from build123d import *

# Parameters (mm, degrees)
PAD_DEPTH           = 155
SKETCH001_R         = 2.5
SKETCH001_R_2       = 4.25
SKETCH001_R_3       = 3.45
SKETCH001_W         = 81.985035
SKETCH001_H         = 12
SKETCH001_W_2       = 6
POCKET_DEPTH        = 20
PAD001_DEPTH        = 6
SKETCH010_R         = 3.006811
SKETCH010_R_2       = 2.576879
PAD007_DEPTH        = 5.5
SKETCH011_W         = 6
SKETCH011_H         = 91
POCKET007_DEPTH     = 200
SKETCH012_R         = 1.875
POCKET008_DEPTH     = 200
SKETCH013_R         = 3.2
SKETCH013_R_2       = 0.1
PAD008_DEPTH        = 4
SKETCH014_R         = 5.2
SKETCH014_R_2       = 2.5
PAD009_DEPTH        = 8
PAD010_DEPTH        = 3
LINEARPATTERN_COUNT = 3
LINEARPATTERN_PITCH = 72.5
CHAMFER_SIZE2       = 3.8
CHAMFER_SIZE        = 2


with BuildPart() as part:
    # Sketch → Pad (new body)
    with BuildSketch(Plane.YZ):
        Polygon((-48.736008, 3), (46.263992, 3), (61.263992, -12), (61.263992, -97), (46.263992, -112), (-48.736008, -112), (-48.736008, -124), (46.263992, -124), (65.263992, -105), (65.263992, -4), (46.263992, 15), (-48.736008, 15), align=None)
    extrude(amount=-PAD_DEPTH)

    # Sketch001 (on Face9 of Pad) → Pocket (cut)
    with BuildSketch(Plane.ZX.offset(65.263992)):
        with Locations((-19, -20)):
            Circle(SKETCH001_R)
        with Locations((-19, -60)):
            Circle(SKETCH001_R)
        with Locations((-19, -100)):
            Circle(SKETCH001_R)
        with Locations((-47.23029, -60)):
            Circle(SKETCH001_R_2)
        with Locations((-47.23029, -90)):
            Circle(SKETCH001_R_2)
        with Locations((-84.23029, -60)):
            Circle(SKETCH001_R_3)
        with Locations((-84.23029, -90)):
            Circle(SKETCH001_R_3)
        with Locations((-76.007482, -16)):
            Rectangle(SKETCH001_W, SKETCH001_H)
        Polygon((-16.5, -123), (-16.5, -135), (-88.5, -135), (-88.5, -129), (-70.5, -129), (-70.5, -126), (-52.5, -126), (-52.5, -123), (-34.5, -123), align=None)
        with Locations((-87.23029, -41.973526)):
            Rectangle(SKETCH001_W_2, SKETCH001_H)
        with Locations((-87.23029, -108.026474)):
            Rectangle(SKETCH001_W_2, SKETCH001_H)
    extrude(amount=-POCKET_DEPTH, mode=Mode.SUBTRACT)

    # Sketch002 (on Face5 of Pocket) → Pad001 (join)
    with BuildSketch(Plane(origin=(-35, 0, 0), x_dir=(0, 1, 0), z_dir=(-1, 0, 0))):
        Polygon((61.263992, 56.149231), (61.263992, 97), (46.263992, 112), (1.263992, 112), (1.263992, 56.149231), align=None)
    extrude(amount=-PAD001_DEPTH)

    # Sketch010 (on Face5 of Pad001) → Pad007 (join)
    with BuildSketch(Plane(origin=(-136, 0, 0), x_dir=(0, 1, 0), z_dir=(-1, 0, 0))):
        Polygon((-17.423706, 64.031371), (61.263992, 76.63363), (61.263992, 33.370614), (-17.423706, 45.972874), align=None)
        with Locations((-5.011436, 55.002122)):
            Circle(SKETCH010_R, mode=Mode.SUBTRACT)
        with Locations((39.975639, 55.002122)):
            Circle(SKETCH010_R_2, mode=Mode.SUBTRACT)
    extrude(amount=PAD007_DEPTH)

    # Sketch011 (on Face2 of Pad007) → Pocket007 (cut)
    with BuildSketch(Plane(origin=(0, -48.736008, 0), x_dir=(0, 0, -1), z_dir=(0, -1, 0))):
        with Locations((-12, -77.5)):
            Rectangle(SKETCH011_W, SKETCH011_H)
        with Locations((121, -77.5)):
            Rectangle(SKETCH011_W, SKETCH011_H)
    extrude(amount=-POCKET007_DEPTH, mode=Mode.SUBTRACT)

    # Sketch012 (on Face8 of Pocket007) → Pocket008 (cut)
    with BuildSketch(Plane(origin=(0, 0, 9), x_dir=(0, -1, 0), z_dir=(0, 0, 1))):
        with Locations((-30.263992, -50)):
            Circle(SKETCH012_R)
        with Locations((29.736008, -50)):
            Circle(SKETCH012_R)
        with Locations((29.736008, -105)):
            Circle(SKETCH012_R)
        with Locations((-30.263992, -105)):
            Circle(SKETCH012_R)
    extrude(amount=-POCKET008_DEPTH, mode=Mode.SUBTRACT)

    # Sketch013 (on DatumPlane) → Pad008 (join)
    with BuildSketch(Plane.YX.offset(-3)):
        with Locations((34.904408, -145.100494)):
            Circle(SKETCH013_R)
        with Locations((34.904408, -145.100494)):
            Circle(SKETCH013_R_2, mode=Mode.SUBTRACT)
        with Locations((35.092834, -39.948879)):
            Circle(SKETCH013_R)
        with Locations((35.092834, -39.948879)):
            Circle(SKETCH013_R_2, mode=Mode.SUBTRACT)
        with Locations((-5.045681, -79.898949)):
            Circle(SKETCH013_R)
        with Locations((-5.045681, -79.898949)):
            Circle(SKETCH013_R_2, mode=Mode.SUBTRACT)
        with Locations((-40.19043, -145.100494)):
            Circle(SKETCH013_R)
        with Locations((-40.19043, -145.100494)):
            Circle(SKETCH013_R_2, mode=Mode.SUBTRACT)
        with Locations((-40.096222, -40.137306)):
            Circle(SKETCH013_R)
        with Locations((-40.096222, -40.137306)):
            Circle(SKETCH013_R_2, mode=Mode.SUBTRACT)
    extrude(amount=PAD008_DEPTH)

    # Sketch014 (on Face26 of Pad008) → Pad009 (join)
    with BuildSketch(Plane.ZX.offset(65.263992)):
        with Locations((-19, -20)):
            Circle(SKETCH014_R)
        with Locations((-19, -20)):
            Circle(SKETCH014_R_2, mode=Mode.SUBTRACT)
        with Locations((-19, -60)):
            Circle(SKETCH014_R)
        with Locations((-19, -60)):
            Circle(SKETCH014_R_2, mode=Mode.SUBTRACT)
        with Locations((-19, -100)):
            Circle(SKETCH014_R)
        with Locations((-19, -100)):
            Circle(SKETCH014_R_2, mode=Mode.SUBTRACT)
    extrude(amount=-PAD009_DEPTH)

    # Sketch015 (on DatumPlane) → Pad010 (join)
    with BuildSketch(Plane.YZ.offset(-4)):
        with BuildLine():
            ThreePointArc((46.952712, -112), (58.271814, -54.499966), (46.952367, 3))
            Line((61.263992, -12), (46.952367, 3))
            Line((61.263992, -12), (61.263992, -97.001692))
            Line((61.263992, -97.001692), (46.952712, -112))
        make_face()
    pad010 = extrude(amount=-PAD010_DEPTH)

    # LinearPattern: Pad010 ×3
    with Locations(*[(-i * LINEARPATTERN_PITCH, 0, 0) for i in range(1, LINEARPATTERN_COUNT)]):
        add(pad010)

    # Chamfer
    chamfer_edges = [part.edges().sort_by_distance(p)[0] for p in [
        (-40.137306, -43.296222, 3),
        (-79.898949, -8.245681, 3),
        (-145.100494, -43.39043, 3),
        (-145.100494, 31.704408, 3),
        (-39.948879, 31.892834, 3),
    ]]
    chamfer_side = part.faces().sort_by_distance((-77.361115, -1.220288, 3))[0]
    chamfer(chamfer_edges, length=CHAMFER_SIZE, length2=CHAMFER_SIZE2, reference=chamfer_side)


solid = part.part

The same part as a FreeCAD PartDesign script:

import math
import FreeCAD as App
import Part
import Sketcher
from FreeCAD import Vector
Q = App.Units.Quantity


def edges_at(feature, points):
    """Names of the edges that pass closest to the given points."""
    edges = feature.Shape.Edges
    near = lambda p: min(range(len(edges)), key=lambda i: edges[i].distToShape(Part.Vertex(*p))[0])
    return sorted({f"Edge{near(p) + 1}" for p in points})

doc = App.newDocument("Part")
params = doc.addObject("Spreadsheet::Sheet", "Params")
for row, (alias, value) in enumerate([
    ("sketch1_width", "95 mm"),
    ("sketch1_height", "85 mm"),
    ("sketch1_height2", "12 mm"),
    ("sketch1_height3", "101 mm"),
    ("pad1_length", "155 mm"),
    ("sketch2_diameter", "5 mm"),
    ("sketch2_diameter2", "8.5 mm"),
    ("sketch2_diameter3", "6.9 mm"),
    ("sketch2_width", "12 mm"),
    ("sketch2_width2", "3 mm"),
    ("pocket1_length", "20 mm"),
    ("sketch3_width", "45 mm"),
    ("sketch3_width2", "60 mm"),
    ("pad2_length", "6 mm"),
    ("pad3_length", "5.5 mm"),
    ("sketch5_width", "91 mm"),
    ("sketch5_height", "6 mm"),
    ("pocket2_length", "200 mm"),
    ("sketch6_diameter", "3.75 mm"),
    ("pocket3_length", "200 mm"),
    ("sketch7_diameter", "6.4 mm"),
    ("sketch7_diameter2", "0.2 mm"),
    ("pad4_length", "4 mm"),
    ("sketch8_diameter", "5 mm"),
    ("sketch8_diameter2", "10.4 mm"),
    ("pad5_length", "8 mm"),
    ("pad6_length", "3 mm"),
    ("linearpattern_pitch", "72.5 mm"),
    ("chamfer_size", "2 mm"),
    ("chamfer_size2", "3.8 mm"),
], start=1):
    params.set(f"A{row}", alias)
    params.set(f"B{row}", "=" + value)
    params.setAlias(f"B{row}", alias)

body = doc.addObject("PartDesign::Body", "Body")

# Sketch on YZ plane
sketch1 = body.newObject("Sketcher::SketchObject", "Sketch")
sketch1.AttachmentSupport = (doc.getObject("YZ_Plane"), [""])
sketch1.MapMode = "FlatFace"
sketch1.addGeometry([
    Part.LineSegment(Vector(-49, 3, 0), Vector(46, 3, 0)),  # 0
    Part.LineSegment(Vector(46, 3, 0), Vector(61, -12, 0)),  # 1
    Part.LineSegment(Vector(61, -12, 0), Vector(61, -97, 0)),  # 2
    Part.LineSegment(Vector(61, -97, 0), Vector(46, -112, 0)),  # 3
    Part.LineSegment(Vector(46, -112, 0), Vector(-49, -112, 0)),  # 4
    Part.LineSegment(Vector(-49, -112, 0), Vector(-49, -124, 0)),  # 5
    Part.LineSegment(Vector(-49, -124, 0), Vector(46, -124, 0)),  # 6
    Part.LineSegment(Vector(46, -124, 0), Vector(65, -105, 0)),  # 7
    Part.LineSegment(Vector(65, -105, 0), Vector(65, -4, 0)),  # 8
    Part.LineSegment(Vector(65, -4, 0), Vector(46, 15, 0)),  # 9
    Part.LineSegment(Vector(46, 15, 0), Vector(-49, 15, 0)),  # 10
    Part.LineSegment(Vector(-49, 15, 0), Vector(-49, 3, 0)),  # 11
], False)
sketch1.addConstraint([
    Sketcher.Constraint("Coincident", 0, 2, 1, 1),
    Sketcher.Constraint("Coincident", 1, 2, 2, 1),
    Sketcher.Constraint("Coincident", 2, 2, 3, 1),
    Sketcher.Constraint("Coincident", 3, 2, 4, 1),
    Sketcher.Constraint("Coincident", 4, 2, 5, 1),
    Sketcher.Constraint("Coincident", 5, 2, 6, 1),
    Sketcher.Constraint("Coincident", 6, 2, 7, 1),
    Sketcher.Constraint("Coincident", 7, 2, 8, 1),
    Sketcher.Constraint("Coincident", 8, 2, 9, 1),
    Sketcher.Constraint("Coincident", 9, 2, 10, 1),
    Sketcher.Constraint("Coincident", 10, 2, 11, 1),
    Sketcher.Constraint("Coincident", 11, 2, 0, 1),
    Sketcher.Constraint("Horizontal", 0),
    Sketcher.Constraint("Vertical", 2),
    Sketcher.Constraint("Horizontal", 4),
    Sketcher.Constraint("Vertical", 5),
    Sketcher.Constraint("Horizontal", 6),
    Sketcher.Constraint("Vertical", 8),
    Sketcher.Constraint("Horizontal", 10),
    Sketcher.Constraint("Vertical", 11),
    Sketcher.Constraint("Perpendicular", 1, 3),
    Sketcher.Constraint("Parallel", 3, 7),
    Sketcher.Constraint("Perpendicular", 7, 9),
    Sketcher.Constraint("Vertical", 0, 2, 3, 2),
    Sketcher.Constraint("Vertical", 3, 2, 6, 2),
    Sketcher.Constraint("Vertical", 6, 2, 9, 2),
    Sketcher.Constraint("Vertical", 5, 2, 10, 2),
    Sketcher.Constraint("Equal", 5, 11),
    Sketcher.Constraint("Equal", 1, 3),
    Sketcher.Constraint("DistanceX", 0, 1, 0, 2, 95.0),
    Sketcher.Constraint("DistanceY", 2, 2, 2, 1, 85.0),
    Sketcher.Constraint("DistanceY", 5, 2, 5, 1, 12.0),
    Sketcher.Constraint("DistanceY", 8, 1, 8, 2, 101.0),
    Sketcher.Constraint("DistanceY", -1, 1, 0, 2, 3.0),
    Sketcher.Constraint("DistanceY", 1, 2, -1, 1, 12.0),
    Sketcher.Constraint("DistanceX", -1, 1, 7, 2, 65.263992),
])
sketch1.setExpression("Constraints[29]", "Params.sketch1_width")
sketch1.setExpression("Constraints[30]", "Params.sketch1_height")
sketch1.setExpression("Constraints[31]", "Params.sketch1_height2")
sketch1.setExpression("Constraints[32]", "Params.sketch1_height3")
pad1 = body.newObject("PartDesign::Pad", "Pad")
pad1.Profile = sketch1
pad1.setExpression("Length", "Params.pad1_length")
pad1.Reversed = True

# Sketch on XZ plane
sketch2 = body.newObject("Sketcher::SketchObject", "Sketch001")
sketch2.AttachmentSupport = (doc.getObject("XZ_Plane"), [""])
sketch2.MapMode = "FlatFace"
sketch2.AttachmentOffset = App.Placement(Vector(0, 0, -65.263992), App.Rotation())
sketch2.addGeometry([
    Part.Circle(Vector(-20, -19, 0), Vector(0, 0, 1), 2.5),  # 0
    Part.Circle(Vector(-60, -19, 0), Vector(0, 0, 1), 2.5),  # 1
    Part.Circle(Vector(-100, -19, 0), Vector(0, 0, 1), 2.5),  # 2
    Part.Circle(Vector(-60, -47.2, 0), Vector(0, 0, 1), 4.2),  # 3
    Part.Circle(Vector(-90, -47.2, 0), Vector(0, 0, 1), 4.2),  # 4
    Part.Circle(Vector(-60, -84.2, 0), Vector(0, 0, 1), 3.5),  # 5
    Part.Circle(Vector(-90, -84.2, 0), Vector(0, 0, 1), 3.5),  # 6
    Part.LineSegment(Vector(-10, -117, 0), Vector(-22, -117, 0)),  # 7
    Part.LineSegment(Vector(-22, -117, 0), Vector(-22, -35, 0)),  # 8
    Part.LineSegment(Vector(-22, -35, 0), Vector(-10, -35, 0)),  # 9
    Part.LineSegment(Vector(-10, -35, 0), Vector(-10, -117, 0)),  # 10
    Part.LineSegment(Vector(-135, -16.5, 0), Vector(-123, -16.5, 0)),  # 11
    Part.LineSegment(Vector(-123, -16.5, 0), Vector(-123, -52.5, 0)),  # 12
    Part.LineSegment(Vector(-123, -52.5, 0), Vector(-126, -52.5, 0)),  # 13
    Part.LineSegment(Vector(-126, -52.5, 0), Vector(-126, -70.5, 0)),  # 14
    Part.LineSegment(Vector(-126, -70.5, 0), Vector(-129, -70.5, 0)),  # 15
    Part.LineSegment(Vector(-129, -70.5, 0), Vector(-129, -88.5, 0)),  # 16
    Part.LineSegment(Vector(-129, -88.5, 0), Vector(-135, -88.5, 0)),  # 17
    Part.LineSegment(Vector(-135, -88.5, 0), Vector(-135, -16.5, 0)),  # 18
    Part.LineSegment(Vector(-36, -90.2, 0), Vector(-48, -90.2, 0)),  # 19
    Part.LineSegment(Vector(-48, -90.2, 0), Vector(-48, -84.2, 0)),  # 20
    Part.LineSegment(Vector(-48, -84.2, 0), Vector(-36, -84.2, 0)),  # 21
    Part.LineSegment(Vector(-36, -84.2, 0), Vector(-36, -90.2, 0)),  # 22
    Part.LineSegment(Vector(-102, -90.2, 0), Vector(-114, -90.2, 0)),  # 23
    Part.LineSegment(Vector(-114, -90.2, 0), Vector(-114, -84.2, 0)),  # 24
    Part.LineSegment(Vector(-114, -84.2, 0), Vector(-102, -84.2, 0)),  # 25
    Part.LineSegment(Vector(-102, -84.2, 0), Vector(-102, -90.2, 0)),  # 26
], False)
sketch2.addConstraint([
    Sketcher.Constraint("Coincident", 7, 2, 8, 1),
    Sketcher.Constraint("Coincident", 8, 2, 9, 1),
    Sketcher.Constraint("Coincident", 9, 2, 10, 1),
    Sketcher.Constraint("Coincident", 10, 2, 7, 1),
    Sketcher.Constraint("Coincident", 11, 2, 12, 1),
    Sketcher.Constraint("Coincident", 12, 2, 13, 1),
    Sketcher.Constraint("Coincident", 13, 2, 14, 1),
    Sketcher.Constraint("Coincident", 14, 2, 15, 1),
    Sketcher.Constraint("Coincident", 15, 2, 16, 1),
    Sketcher.Constraint("Coincident", 16, 2, 17, 1),
    Sketcher.Constraint("Coincident", 17, 2, 18, 1),
    Sketcher.Constraint("Coincident", 18, 2, 11, 1),
    Sketcher.Constraint("Coincident", 19, 2, 20, 1),
    Sketcher.Constraint("Coincident", 20, 2, 21, 1),
    Sketcher.Constraint("Coincident", 21, 2, 22, 1),
    Sketcher.Constraint("Coincident", 22, 2, 19, 1),
    Sketcher.Constraint("Coincident", 23, 2, 24, 1),
    Sketcher.Constraint("Coincident", 24, 2, 25, 1),
    Sketcher.Constraint("Coincident", 25, 2, 26, 1),
    Sketcher.Constraint("Coincident", 26, 2, 23, 1),
    Sketcher.Constraint("Horizontal", 7),
    Sketcher.Constraint("Vertical", 8),
    Sketcher.Constraint("Horizontal", 9),
    Sketcher.Constraint("Vertical", 10),
    Sketcher.Constraint("Horizontal", 11),
    Sketcher.Constraint("Vertical", 12),
    Sketcher.Constraint("Horizontal", 13),
    Sketcher.Constraint("Vertical", 14),
    Sketcher.Constraint("Horizontal", 15),
    Sketcher.Constraint("Vertical", 16),
    Sketcher.Constraint("Horizontal", 17),
    Sketcher.Constraint("Vertical", 18),
    Sketcher.Constraint("Horizontal", 19),
    Sketcher.Constraint("Vertical", 20),
    Sketcher.Constraint("Horizontal", 21),
    Sketcher.Constraint("Vertical", 22),
    Sketcher.Constraint("Horizontal", 23),
    Sketcher.Constraint("Vertical", 24),
    Sketcher.Constraint("Horizontal", 25),
    Sketcher.Constraint("Vertical", 26),
    Sketcher.Constraint("Equal", 0, 1),
    Sketcher.Constraint("Equal", 1, 2),
    Sketcher.Constraint("Equal", 3, 4),
    Sketcher.Constraint("Equal", 5, 6),
    Sketcher.Constraint("Horizontal", 0, 3, 1, 3),
    Sketcher.Constraint("Horizontal", 1, 3, 2, 3),
    Sketcher.Constraint("Horizontal", 3, 3, 4, 3),
    Sketcher.Constraint("Horizontal", 5, 3, 6, 3),
    Sketcher.Constraint("Horizontal", 6, 3, 20, 2),
    Sketcher.Constraint("Horizontal", 22, 2, 23, 2),
    Sketcher.Constraint("Horizontal", 21, 2, 24, 2),
    Sketcher.Constraint("Vertical", 1, 3, 3, 3),
    Sketcher.Constraint("Vertical", 3, 3, 5, 3),
    Sketcher.Constraint("Vertical", 4, 3, 6, 3),
    Sketcher.Constraint("Equal", 9, 11),
    Sketcher.Constraint("Equal", 13, 15),
    Sketcher.Constraint("Equal", 11, 19),
    Sketcher.Constraint("Equal", 21, 23),
    Sketcher.Constraint("Equal", 14, 16),
    Sketcher.Constraint("Equal", 17, 20),
    Sketcher.Constraint("Diameter", 0, 5.0),
    Sketcher.Constraint("Diameter", 3, 8.5),
    Sketcher.Constraint("Diameter", 5, 6.9),
    Sketcher.Constraint("DistanceX", 7, 2, 7, 1, 12.0),
    Sketcher.Constraint("DistanceX", 13, 2, 13, 1, 3.0),
    Sketcher.Constraint("DistanceY", 12, 2, 12, 1, 36.0),
    Sketcher.Constraint("DistanceY", 14, 2, 14, 1, 18.0),
    Sketcher.Constraint("DistanceX", 0, 3, -1, 1, 20.0),
    Sketcher.Constraint("DistanceY", 0, 3, -1, 1, 19.0),
    Sketcher.Constraint("DistanceX", 1, 3, -1, 1, 60.0),
    Sketcher.Constraint("DistanceX", 2, 3, -1, 1, 100.0),
    Sketcher.Constraint("DistanceX", 4, 3, -1, 1, 90.0),
    Sketcher.Constraint("DistanceX", 7, 2, -1, 1, 22.0),
    Sketcher.Constraint("DistanceY", 7, 2, -1, 1, 117.0),
    Sketcher.Constraint("DistanceX", 11, 2, -1, 1, 123.0),
    Sketcher.Constraint("DistanceY", 5, 3, 3, 3, 37.0),
    Sketcher.Constraint("DistanceY", 11, 2, -1, 1, 16.5),
    Sketcher.Constraint("DistanceY", 8, 1, 8, 2, 81.985035),
    Sketcher.Constraint("DistanceY", 3, 3, -1, 1, 47.23029),
    Sketcher.Constraint("DistanceX", 19, 2, -1, 1, 47.973526),
    Sketcher.Constraint("DistanceX", 23, 2, -1, 1, 114.026474),
])
sketch2.setExpression("Constraints[60]", "Params.sketch2_diameter")
sketch2.setExpression("Constraints[61]", "Params.sketch2_diameter2")
sketch2.setExpression("Constraints[62]", "Params.sketch2_diameter3")
sketch2.setExpression("Constraints[63]", "Params.sketch2_width")
sketch2.setExpression("Constraints[64]", "Params.sketch2_width2")
pocket1 = body.newObject("PartDesign::Pocket", "Pocket")
pocket1.Profile = sketch2
pocket1.setExpression("Length", "Params.pocket1_length")
pocket1.Reversed = True

# Sketch on YZ plane
sketch3 = body.newObject("Sketcher::SketchObject", "Sketch002")
sketch3.AttachmentSupport = (doc.getObject("YZ_Plane"), [""])
sketch3.MapMode = "FlatFace"
sketch3.AttachmentOffset = App.Placement(Vector(0, 0, -35), App.Rotation())
sketch3.addGeometry([
    Part.LineSegment(Vector(61, -56, 0), Vector(61, -97, 0)),  # 0
    Part.LineSegment(Vector(61, -97, 0), Vector(46, -112, 0)),  # 1
    Part.LineSegment(Vector(46, -112, 0), Vector(1, -112, 0)),  # 2
    Part.LineSegment(Vector(1, -112, 0), Vector(1, -56, 0)),  # 3
    Part.LineSegment(Vector(1, -56, 0), Vector(61, -56, 0)),  # 4
], False)
sketch3.addConstraint([
    Sketcher.Constraint("Coincident", 0, 2, 1, 1),
    Sketcher.Constraint("Coincident", 1, 2, 2, 1),
    Sketcher.Constraint("Coincident", 2, 2, 3, 1),
    Sketcher.Constraint("Coincident", 3, 2, 4, 1),
    Sketcher.Constraint("Coincident", 4, 2, 0, 1),
    Sketcher.Constraint("Vertical", 0),
    Sketcher.Constraint("Horizontal", 2),
    Sketcher.Constraint("Vertical", 3),
    Sketcher.Constraint("Horizontal", 4),
    Sketcher.Constraint("DistanceX", 2, 2, 2, 1, 45.0),
    Sketcher.Constraint("DistanceX", 4, 1, 4, 2, 60.0),
    Sketcher.Constraint("Angle", 1, Q("-135 deg")),
    Sketcher.Constraint("DistanceY", 0, 2, -1, 1, 97.0),
    Sketcher.Constraint("DistanceY", 0, 2, 0, 1, 40.850769),
    Sketcher.Constraint("DistanceX", -1, 1, 0, 2, 61.263992),
])
sketch3.setExpression("Constraints[9]", "Params.sketch3_width")
sketch3.setExpression("Constraints[10]", "Params.sketch3_width2")
pad2 = body.newObject("PartDesign::Pad", "Pad001")
pad2.Profile = sketch3
pad2.setExpression("Length", "Params.pad2_length")

# Sketch on YZ plane
sketch4 = body.newObject("Sketcher::SketchObject", "Sketch003")
sketch4.AttachmentSupport = (doc.getObject("YZ_Plane"), [""])
sketch4.MapMode = "FlatFace"
sketch4.AttachmentOffset = App.Placement(Vector(0, 0, -136), App.Rotation())
sketch4.addGeometry([
    Part.LineSegment(Vector(61.3, -76.6, 0), Vector(-17.4, -64, 0)),  # 0
    Part.LineSegment(Vector(-17.4, -64, 0), Vector(-17.4, -46, 0)),  # 1
    Part.LineSegment(Vector(-17.4, -46, 0), Vector(61.3, -33.4, 0)),  # 2
    Part.LineSegment(Vector(61.3, -33.4, 0), Vector(61.3, -76.6, 0)),  # 3
    Part.Circle(Vector(40, -55, 0), Vector(0, 0, 1), 2.6),  # 4
    Part.Circle(Vector(-5, -55, 0), Vector(0, 0, 1), 3),  # 5
], False)
sketch4.addConstraint([
    Sketcher.Constraint("Coincident", 0, 2, 1, 1),
    Sketcher.Constraint("Coincident", 1, 2, 2, 1),
    Sketcher.Constraint("Coincident", 2, 2, 3, 1),
    Sketcher.Constraint("Coincident", 3, 2, 0, 1),
    Sketcher.Constraint("Vertical", 1),
    Sketcher.Constraint("Vertical", 3),
    Sketcher.Constraint("Horizontal", 4, 3, 5, 3),
    Sketcher.Constraint("Equal", 0, 2),
    Sketcher.Constraint("Diameter", 5, 6.013622),
    Sketcher.Constraint("Diameter", 4, 5.153758),
    Sketcher.Constraint("Distance", 0, 79.690468),
    Sketcher.Constraint("DistanceY", 1, 1, 1, 2, 18.058497),
    Sketcher.Constraint("DistanceY", 3, 2, 3, 1, 43.263016),
    Sketcher.Constraint("DistanceX", -1, 1, 4, 3, 39.975639),
    Sketcher.Constraint("DistanceY", 0, 2, -1, 1, 64.031371),
    Sketcher.Constraint("DistanceX", 0, 2, 5, 3, 12.41227),
    Sketcher.Constraint("DistanceY", 0, 2, 5, 3, 9.029249),
    Sketcher.Constraint("DistanceX", 5, 3, -1, 1, 5.011436),
])
pad3 = body.newObject("PartDesign::Pad", "Pad002")
pad3.Profile = sketch4
pad3.setExpression("Length", "Params.pad3_length")
pad3.Reversed = True

# Sketch on XZ plane
sketch5 = body.newObject("Sketcher::SketchObject", "Sketch004")
sketch5.AttachmentSupport = (doc.getObject("XZ_Plane"), [""])
sketch5.MapMode = "FlatFace"
sketch5.AttachmentOffset = App.Placement(Vector(0, 0, 48.736008), App.Rotation())
sketch5.addGeometry([
    Part.LineSegment(Vector(-32, 15, 0), Vector(-123, 15, 0)),  # 0
    Part.LineSegment(Vector(-123, 15, 0), Vector(-123, 9, 0)),  # 1
    Part.LineSegment(Vector(-123, 9, 0), Vector(-32, 9, 0)),  # 2
    Part.LineSegment(Vector(-32, 9, 0), Vector(-32, 15, 0)),  # 3
    Part.LineSegment(Vector(-32, -118, 0), Vector(-123, -118, 0)),  # 4
    Part.LineSegment(Vector(-123, -118, 0), Vector(-123, -124, 0)),  # 5
    Part.LineSegment(Vector(-123, -124, 0), Vector(-32, -124, 0)),  # 6
    Part.LineSegment(Vector(-32, -124, 0), Vector(-32, -118, 0)),  # 7
], False)
sketch5.addConstraint([
    Sketcher.Constraint("Coincident", 0, 2, 1, 1),
    Sketcher.Constraint("Coincident", 1, 2, 2, 1),
    Sketcher.Constraint("Coincident", 2, 2, 3, 1),
    Sketcher.Constraint("Coincident", 3, 2, 0, 1),
    Sketcher.Constraint("Coincident", 4, 2, 5, 1),
    Sketcher.Constraint("Coincident", 5, 2, 6, 1),
    Sketcher.Constraint("Coincident", 6, 2, 7, 1),
    Sketcher.Constraint("Coincident", 7, 2, 4, 1),
    Sketcher.Constraint("Horizontal", 0),
    Sketcher.Constraint("Vertical", 1),
    Sketcher.Constraint("Horizontal", 2),
    Sketcher.Constraint("Vertical", 3),
    Sketcher.Constraint("Horizontal", 4),
    Sketcher.Constraint("Vertical", 5),
    Sketcher.Constraint("Horizontal", 6),
    Sketcher.Constraint("Vertical", 7),
    Sketcher.Constraint("Vertical", 1, 2, 4, 2),
    Sketcher.Constraint("Vertical", 3, 2, 6, 2),
    Sketcher.Constraint("Equal", 3, 5),
    Sketcher.Constraint("DistanceX", 0, 2, 0, 1, 91.0),
    Sketcher.Constraint("DistanceY", 1, 2, 1, 1, 6.0),
    Sketcher.Constraint("DistanceX", 0, 2, -1, 1, 123.0),
    Sketcher.Constraint("DistanceY", -1, 1, 0, 2, 15.0),
    Sketcher.Constraint("DistanceY", 4, 2, -1, 1, 118.0),
])
sketch5.setExpression("Constraints[19]", "Params.sketch5_width")
sketch5.setExpression("Constraints[20]", "Params.sketch5_height")
pocket2 = body.newObject("PartDesign::Pocket", "Pocket001")
pocket2.Profile = sketch5
pocket2.setExpression("Length", "Params.pocket2_length")

# Sketch on XY plane
sketch6 = body.newObject("Sketcher::SketchObject", "Sketch005")
sketch6.AttachmentSupport = (doc.getObject("XY_Plane"), [""])
sketch6.MapMode = "FlatFace"
sketch6.AttachmentOffset = App.Placement(Vector(0, 0, 9), App.Rotation())
sketch6.addGeometry([
    Part.Circle(Vector(-50, 30.3, 0), Vector(0, 0, 1), 1.9),
    Part.Circle(Vector(-50, -29.7, 0), Vector(0, 0, 1), 1.9),
    Part.Circle(Vector(-105, -29.7, 0), Vector(0, 0, 1), 1.9),
    Part.Circle(Vector(-105, 30.3, 0), Vector(0, 0, 1), 1.9),
], False)
sketch6.addConstraint([
    Sketcher.Constraint("Equal", 0, 1),
    Sketcher.Constraint("Equal", 1, 2),
    Sketcher.Constraint("Equal", 2, 3),
    Sketcher.Constraint("Horizontal", 1, 3, 2, 3),
    Sketcher.Constraint("Horizontal", 0, 3, 3, 3),
    Sketcher.Constraint("Vertical", 0, 3, 1, 3),
    Sketcher.Constraint("Vertical", 2, 3, 3, 3),
    Sketcher.Constraint("Diameter", 0, 3.75),
    Sketcher.Constraint("DistanceX", 0, 3, -1, 1, 50.0),
    Sketcher.Constraint("DistanceX", 2, 3, -1, 1, 105.0),
    Sketcher.Constraint("DistanceY", 1, 3, 0, 3, 60.0),
    Sketcher.Constraint("DistanceY", -1, 1, 0, 3, 30.263992),
])
sketch6.setExpression("Constraints[7]", "Params.sketch6_diameter")
pocket3 = body.newObject("PartDesign::Pocket", "Pocket002")
pocket3.Profile = sketch6
pocket3.setExpression("Length", "Params.pocket3_length")

# Sketch on XY plane
sketch7 = body.newObject("Sketcher::SketchObject", "Sketch006")
sketch7.AttachmentSupport = (doc.getObject("XY_Plane"), [""])
sketch7.MapMode = "FlatFace"
sketch7.AttachmentOffset = App.Placement(Vector(0, 0, 3), App.Rotation())
sketch7.addGeometry([
    Part.Circle(Vector(-145.1, 34.9, 0), Vector(0, 0, 1), 3.2),  # 0
    Part.Circle(Vector(-145.1, 34.9, 0), Vector(0, 0, 1), 0.1),  # 1
    Part.Circle(Vector(-39.95, 35.09, 0), Vector(0, 0, 1), 3.2),  # 2
    Part.Circle(Vector(-39.95, 35.09, 0), Vector(0, 0, 1), 0.1),  # 3
    Part.Circle(Vector(-79.9, -5.05, 0), Vector(0, 0, 1), 3.2),  # 4
    Part.Circle(Vector(-79.9, -5.05, 0), Vector(0, 0, 1), 0.1),  # 5
    Part.Circle(Vector(-145.1, -40.19, 0), Vector(0, 0, 1), 3.2),  # 6
    Part.Circle(Vector(-145.1, -40.19, 0), Vector(0, 0, 1), 0.1),  # 7
    Part.Circle(Vector(-40.14, -40.1, 0), Vector(0, 0, 1), 3.2),  # 8
    Part.Circle(Vector(-40.14, -40.1, 0), Vector(0, 0, 1), 0.1),  # 9
], False)
sketch7.addConstraint([
    Sketcher.Constraint("Coincident", 1, 3, 0, 3),
    Sketcher.Constraint("Coincident", 3, 3, 2, 3),
    Sketcher.Constraint("Coincident", 5, 3, 4, 3),
    Sketcher.Constraint("Coincident", 7, 3, 6, 3),
    Sketcher.Constraint("Coincident", 9, 3, 8, 3),
    Sketcher.Constraint("Equal", 0, 2),
    Sketcher.Constraint("Equal", 1, 3),
    Sketcher.Constraint("Equal", 2, 4),
    Sketcher.Constraint("Equal", 3, 5),
    Sketcher.Constraint("Equal", 4, 6),
    Sketcher.Constraint("Equal", 5, 7),
    Sketcher.Constraint("Equal", 6, 8),
    Sketcher.Constraint("Equal", 7, 9),
    Sketcher.Constraint("Vertical", 1, 3, 6, 3),
    Sketcher.Constraint("Diameter", 0, 6.4),
    Sketcher.Constraint("Diameter", 1, 0.2),
    Sketcher.Constraint("DistanceX", 2, 3, -1, 1, 39.948879),
    Sketcher.Constraint("DistanceX", 4, 3, -1, 1, 79.898949),
    Sketcher.Constraint("DistanceY", 4, 3, -1, 1, 5.045681),
    Sketcher.Constraint("DistanceY", 6, 3, -1, 1, 40.19043),
    Sketcher.Constraint("DistanceY", 8, 3, -1, 1, 40.096222),
    Sketcher.Constraint("DistanceY", 4, 3, 0, 3, 39.950089),
    Sketcher.Constraint("DistanceX", 6, 3, 8, 3, 104.963188),
    Sketcher.Constraint("DistanceX", 0, 3, -1, 1, 145.100494),
    Sketcher.Constraint("DistanceY", -1, 1, 2, 3, 35.092834),
])
sketch7.setExpression("Constraints[14]", "Params.sketch7_diameter")
sketch7.setExpression("Constraints[15]", "Params.sketch7_diameter2")
pad4 = body.newObject("PartDesign::Pad", "Pad003")
pad4.Profile = sketch7
pad4.setExpression("Length", "Params.pad4_length")
pad4.Reversed = True

# Sketch on XZ plane
sketch8 = body.newObject("Sketcher::SketchObject", "Sketch007")
sketch8.AttachmentSupport = (doc.getObject("XZ_Plane"), [""])
sketch8.MapMode = "FlatFace"
sketch8.AttachmentOffset = App.Placement(Vector(0, 0, -65.263992), App.Rotation())
sketch8.addGeometry([
    Part.Circle(Vector(-20, -19, 0), Vector(0, 0, 1), 5.2),  # 0
    Part.Circle(Vector(-20, -19, 0), Vector(0, 0, 1), 2.5),  # 1
    Part.Circle(Vector(-60, -19, 0), Vector(0, 0, 1), 5.2),  # 2
    Part.Circle(Vector(-60, -19, 0), Vector(0, 0, 1), 2.5),  # 3
    Part.Circle(Vector(-100, -19, 0), Vector(0, 0, 1), 5.2),  # 4
    Part.Circle(Vector(-100, -19, 0), Vector(0, 0, 1), 2.5),  # 5
], False)
sketch8.addConstraint([
    Sketcher.Constraint("Coincident", 1, 3, 0, 3),
    Sketcher.Constraint("Coincident", 3, 3, 2, 3),
    Sketcher.Constraint("Coincident", 5, 3, 4, 3),
    Sketcher.Constraint("Equal", 0, 2),
    Sketcher.Constraint("Equal", 1, 3),
    Sketcher.Constraint("Equal", 2, 4),
    Sketcher.Constraint("Equal", 3, 5),
    Sketcher.Constraint("Horizontal", 1, 3, 2, 3),
    Sketcher.Constraint("Horizontal", 3, 3, 4, 3),
    Sketcher.Constraint("Diameter", 1, 5.0),
    Sketcher.Constraint("Diameter", 0, 10.4),
    Sketcher.Constraint("DistanceX", 0, 3, -1, 1, 20.0),
    Sketcher.Constraint("DistanceY", 0, 3, -1, 1, 19.0),
    Sketcher.Constraint("DistanceX", 2, 3, -1, 1, 60.0),
    Sketcher.Constraint("DistanceX", 4, 3, -1, 1, 100.0),
])
sketch8.setExpression("Constraints[9]", "Params.sketch8_diameter")
sketch8.setExpression("Constraints[10]", "Params.sketch8_diameter2")
pad5 = body.newObject("PartDesign::Pad", "Pad004")
pad5.Profile = sketch8
pad5.setExpression("Length", "Params.pad5_length")

# Sketch on YZ plane
sketch9 = body.newObject("Sketcher::SketchObject", "Sketch008")
sketch9.AttachmentSupport = (doc.getObject("YZ_Plane"), [""])
sketch9.MapMode = "FlatFace"
sketch9.AttachmentOffset = App.Placement(Vector(0, 0, -4), App.Rotation())
sketch9.addGeometry([
    Part.ArcOfCircle(Part.Circle(Vector(-93, -55, 0), Vector(0, 0, 1), 152), math.radians(-22), math.radians(22)),
    Part.LineSegment(Vector(47, -112, 0), Vector(61, -97, 0)),
    Part.LineSegment(Vector(61, -97, 0), Vector(61, -12, 0)),
    Part.LineSegment(Vector(61, -12, 0), Vector(47, 3, 0)),
], False)
sketch9.addConstraint([
    Sketcher.Constraint("Coincident", 0, 1, 1, 1),
    Sketcher.Constraint("Coincident", 1, 2, 2, 1),
    Sketcher.Constraint("Coincident", 2, 2, 3, 1),
    Sketcher.Constraint("Coincident", 3, 2, 0, 2),
    Sketcher.Constraint("Vertical", 2),
    Sketcher.Constraint("DistanceY", 0, 1, -1, 1, 112.0),
    Sketcher.Constraint("DistanceY", 2, 2, -1, 1, 12.0),
    Sketcher.Constraint("DistanceY", -1, 1, 3, 2, 3.0),
    Sketcher.Constraint("Radius", 0, 151.704775),
    Sketcher.Constraint("Distance", 1, 20.730701),
    Sketcher.Constraint("DistanceY", 2, 1, 2, 2, 85.001692),
    Sketcher.Constraint("DistanceX", 0, 3, -1, 1, 93.432961),
    Sketcher.Constraint("DistanceY", 0, 3, -1, 1, 54.500421),
])
pad6 = body.newObject("PartDesign::Pad", "Pad005")
pad6.Profile = sketch9
pad6.setExpression("Length", "Params.pad6_length")
pad6.Reversed = True
doc.recompute()

linearpattern = body.newObject("PartDesign::LinearPattern", "LinearPattern")
linearpattern.Originals = [pad6]
linearpattern.Direction = (doc.getObject("X_Axis"), [""])
linearpattern.Mode = "offset"
linearpattern.setExpression("Offset", "Params.linearpattern_pitch")
linearpattern.Occurrences = 3
linearpattern.Reversed = True
body.Tip = linearpattern
doc.recompute()

chamfer = body.newObject("PartDesign::Chamfer", "Chamfer")
chamfer.Base = (linearpattern, edges_at(linearpattern, [
    (-40.137, -43.296, 3),
    (-79.899, -8.246, 3),
    (-145.1, -43.39, 3),
    (-145.1, 31.704, 3),
    (-39.949, 31.893, 3),
]))
chamfer.ChamferType = "Two distances"
chamfer.setExpression("Size", "Params.chamfer_size")
chamfer.setExpression("Size2", "Params.chamfer_size2")

doc.recompute()
